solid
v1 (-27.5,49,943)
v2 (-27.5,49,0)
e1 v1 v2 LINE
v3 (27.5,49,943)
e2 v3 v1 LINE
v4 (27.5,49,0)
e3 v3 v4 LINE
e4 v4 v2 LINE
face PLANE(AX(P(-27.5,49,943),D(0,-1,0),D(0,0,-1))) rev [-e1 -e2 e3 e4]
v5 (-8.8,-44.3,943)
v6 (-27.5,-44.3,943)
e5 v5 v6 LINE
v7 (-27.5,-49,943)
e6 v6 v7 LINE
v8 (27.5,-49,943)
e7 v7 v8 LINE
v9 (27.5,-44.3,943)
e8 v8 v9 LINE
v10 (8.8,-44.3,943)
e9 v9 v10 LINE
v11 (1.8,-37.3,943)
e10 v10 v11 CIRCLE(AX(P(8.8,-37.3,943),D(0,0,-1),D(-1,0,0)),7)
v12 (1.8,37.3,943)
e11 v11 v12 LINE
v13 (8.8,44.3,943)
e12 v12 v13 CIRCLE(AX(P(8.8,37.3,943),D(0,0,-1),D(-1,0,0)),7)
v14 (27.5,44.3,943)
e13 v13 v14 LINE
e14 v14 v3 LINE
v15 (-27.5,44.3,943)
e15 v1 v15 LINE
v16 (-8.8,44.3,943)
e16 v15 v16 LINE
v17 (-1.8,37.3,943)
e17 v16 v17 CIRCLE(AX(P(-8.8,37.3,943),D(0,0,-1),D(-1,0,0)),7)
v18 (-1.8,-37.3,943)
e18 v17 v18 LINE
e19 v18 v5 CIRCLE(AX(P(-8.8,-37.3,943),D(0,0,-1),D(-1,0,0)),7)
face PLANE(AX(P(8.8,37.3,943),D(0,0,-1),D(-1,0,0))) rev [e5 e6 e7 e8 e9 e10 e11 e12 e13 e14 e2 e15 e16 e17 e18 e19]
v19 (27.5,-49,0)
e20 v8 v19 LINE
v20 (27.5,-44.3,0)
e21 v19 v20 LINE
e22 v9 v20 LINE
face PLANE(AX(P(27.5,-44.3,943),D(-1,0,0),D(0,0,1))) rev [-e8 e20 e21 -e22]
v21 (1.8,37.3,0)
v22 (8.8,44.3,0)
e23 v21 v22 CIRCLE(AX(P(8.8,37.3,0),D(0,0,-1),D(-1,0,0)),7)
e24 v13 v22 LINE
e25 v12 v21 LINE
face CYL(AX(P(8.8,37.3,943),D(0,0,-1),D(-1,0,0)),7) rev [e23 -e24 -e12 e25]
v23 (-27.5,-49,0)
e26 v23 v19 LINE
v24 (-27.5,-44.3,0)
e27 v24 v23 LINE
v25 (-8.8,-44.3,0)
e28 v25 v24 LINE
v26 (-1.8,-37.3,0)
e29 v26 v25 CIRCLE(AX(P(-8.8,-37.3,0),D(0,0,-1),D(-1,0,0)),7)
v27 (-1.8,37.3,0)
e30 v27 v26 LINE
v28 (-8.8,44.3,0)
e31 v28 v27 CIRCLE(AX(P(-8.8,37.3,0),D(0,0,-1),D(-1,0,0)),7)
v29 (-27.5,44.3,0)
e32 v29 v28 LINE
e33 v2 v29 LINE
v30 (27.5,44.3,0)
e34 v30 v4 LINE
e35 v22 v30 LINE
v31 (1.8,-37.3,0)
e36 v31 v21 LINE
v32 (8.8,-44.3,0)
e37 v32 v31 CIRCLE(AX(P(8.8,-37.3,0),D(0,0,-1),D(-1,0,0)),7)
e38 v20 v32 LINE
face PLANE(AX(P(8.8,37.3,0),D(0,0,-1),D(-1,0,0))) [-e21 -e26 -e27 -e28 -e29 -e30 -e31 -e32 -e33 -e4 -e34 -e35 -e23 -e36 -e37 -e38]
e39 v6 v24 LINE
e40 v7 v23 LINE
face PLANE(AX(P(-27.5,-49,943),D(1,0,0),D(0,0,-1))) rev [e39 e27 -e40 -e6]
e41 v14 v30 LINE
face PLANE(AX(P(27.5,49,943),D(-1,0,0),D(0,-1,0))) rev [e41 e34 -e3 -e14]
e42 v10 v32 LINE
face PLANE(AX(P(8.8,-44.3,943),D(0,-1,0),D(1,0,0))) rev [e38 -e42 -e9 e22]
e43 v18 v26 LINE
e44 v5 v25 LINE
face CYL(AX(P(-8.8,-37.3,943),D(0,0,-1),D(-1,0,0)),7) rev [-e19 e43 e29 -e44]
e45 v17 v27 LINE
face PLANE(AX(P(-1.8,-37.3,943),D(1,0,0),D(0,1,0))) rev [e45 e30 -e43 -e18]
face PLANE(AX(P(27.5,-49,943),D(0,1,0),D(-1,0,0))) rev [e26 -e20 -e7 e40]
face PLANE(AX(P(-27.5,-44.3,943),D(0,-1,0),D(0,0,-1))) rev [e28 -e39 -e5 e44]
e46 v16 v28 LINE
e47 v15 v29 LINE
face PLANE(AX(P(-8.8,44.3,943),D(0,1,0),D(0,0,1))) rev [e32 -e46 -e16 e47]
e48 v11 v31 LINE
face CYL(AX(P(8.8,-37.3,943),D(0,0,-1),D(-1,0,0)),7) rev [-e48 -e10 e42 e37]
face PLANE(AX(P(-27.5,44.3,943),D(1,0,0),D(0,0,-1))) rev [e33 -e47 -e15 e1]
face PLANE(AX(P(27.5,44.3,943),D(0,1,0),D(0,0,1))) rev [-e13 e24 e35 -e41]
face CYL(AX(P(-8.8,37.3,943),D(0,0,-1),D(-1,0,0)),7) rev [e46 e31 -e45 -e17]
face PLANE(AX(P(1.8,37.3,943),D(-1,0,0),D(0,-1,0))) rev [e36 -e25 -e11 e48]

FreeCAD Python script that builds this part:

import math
import FreeCAD as App
import Part
import Sketcher
Q = App.Units.Quantity

doc = App.newDocument("Part")
body = doc.addObject("PartDesign::Body", "Body")

# Sketch on XY plane
sketch1 = body.newObject("Sketcher::SketchObject", "Sketch")
sketch1.AttachmentSupport = (doc.getObject("XY_Plane"), [""])
sketch1.MapMode = "FlatFace"
sketch1.addGeometry(Part.LineSegment(App.Vector(27.5, 49, 0), App.Vector(-27.5, 49, 0)), False)
sketch1.addGeometry(Part.LineSegment(App.Vector(-27.5, 49, 0), App.Vector(-27.5, 44.3, 0)), False)
sketch1.addGeometry(Part.LineSegment(App.Vector(-27.5, 44.3, 0), App.Vector(-8.8, 44.3, 0)), False)
sketch1.addGeometry(Part.ArcOfCircle(Part.Circle(App.Vector(-8.8, 37.3, 0), App.Vector(0, 0, 1), 7), math.radians(0), math.radians(90)), False)
sketch1.addGeometry(Part.LineSegment(App.Vector(-1.8, 37.3, 0), App.Vector(-1.8, -37.3, 0)), False)
sketch1.addGeometry(Part.ArcOfCircle(Part.Circle(App.Vector(-8.8, -37.3, 0), App.Vector(0, 0, 1), 7), math.radians(-90), math.radians(0)), False)
sketch1.addGeometry(Part.LineSegment(App.Vector(-8.8, -44.3, 0), App.Vector(-27.5, -44.3, 0)), False)
sketch1.addGeometry(Part.LineSegment(App.Vector(-27.5, -44.3, 0), App.Vector(-27.5, -49, 0)), False)
sketch1.addGeometry(Part.LineSegment(App.Vector(-27.5, -49, 0), App.Vector(27.5, -49, 0)), False)
sketch1.addGeometry(Part.LineSegment(App.Vector(27.5, -49, 0), App.Vector(27.5, -44.3, 0)), False)
sketch1.addGeometry(Part.LineSegment(App.Vector(27.5, -44.3, 0), App.Vector(8.8, -44.3, 0)), False)
sketch1.addGeometry(Part.ArcOfCircle(Part.Circle(App.Vector(8.8, -37.3, 0), App.Vector(0, 0, 1), 7), math.radians(-180), math.radians(-90)), False)
sketch1.addGeometry(Part.LineSegment(App.Vector(1.8, -37.3, 0), App.Vector(1.8, 37.3, 0)), False)
sketch1.addGeometry(Part.ArcOfCircle(Part.Circle(App.Vector(8.8, 37.3, 0), App.Vector(0, 0, 1), 7), math.radians(90), math.radians(180)), False)
sketch1.addGeometry(Part.LineSegment(App.Vector(8.8, 44.3, 0), App.Vector(27.5, 44.3, 0)), False)
sketch1.addGeometry(Part.LineSegment(App.Vector(27.5, 44.3, 0), App.Vector(27.5, 49, 0)), False)
sketch1.addConstraint(Sketcher.Constraint("Coincident", 0, 2, 1, 1))
sketch1.addConstraint(Sketcher.Constraint("Coincident", 1, 2, 2, 1))
sketch1.addConstraint(Sketcher.Constraint("Tangent", 2, 2, 3, 2))
sketch1.addConstraint(Sketcher.Constraint("Tangent", 3, 1, 4, 1))
sketch1.addConstraint(Sketcher.Constraint("Tangent", 4, 2, 5, 2))
sketch1.addConstraint(Sketcher.Constraint("Tangent", 5, 1, 6, 1))
sketch1.addConstraint(Sketcher.Constraint("Coincident", 6, 2, 7, 1))
sketch1.addConstraint(Sketcher.Constraint("Coincident", 7, 2, 8, 1))
sketch1.addConstraint(Sketcher.Constraint("Coincident", 8, 2, 9, 1))
sketch1.addConstraint(Sketcher.Constraint("Coincident", 9, 2, 10, 1))
sketch1.addConstraint(Sketcher.Constraint("Tangent", 10, 2, 11, 2))
sketch1.addConstraint(Sketcher.Constraint("Tangent", 11, 1, 12, 1))
sketch1.addConstraint(Sketcher.Constraint("Tangent", 12, 2, 13, 2))
sketch1.addConstraint(Sketcher.Constraint("Tangent", 13, 1, 14, 1))
sketch1.addConstraint(Sketcher.Constraint("Coincident", 14, 2, 15, 1))
sketch1.addConstraint(Sketcher.Constraint("Coincident", 15, 2, 0, 1))
sketch1.addConstraint(Sketcher.Constraint("Horizontal", 0))
sketch1.addConstraint(Sketcher.Constraint("Vertical", 1))
sketch1.addConstraint(Sketcher.Constraint("Horizontal", 2))
sketch1.addConstraint(Sketcher.Constraint("Vertical", 4))
sketch1.addConstraint(Sketcher.Constraint("Horizontal", 6))
sketch1.addConstraint(Sketcher.Constraint("Vertical", 7))
sketch1.addConstraint(Sketcher.Constraint("Horizontal", 8))
sketch1.addConstraint(Sketcher.Constraint("Vertical", 9))
sketch1.addConstraint(Sketcher.Constraint("Horizontal", 10))
sketch1.addConstraint(Sketcher.Constraint("Vertical", 12))
sketch1.addConstraint(Sketcher.Constraint("Horizontal", 14))
sketch1.addConstraint(Sketcher.Constraint("Vertical", 15))
sketch1.addConstraint(Sketcher.Constraint("Equal", 3, 5))
sketch1.addConstraint(Sketcher.Constraint("Equal", 5, 11))
sketch1.addConstraint(Sketcher.Constraint("Equal", 11, 13))
sketch1.addConstraint(Sketcher.Constraint("Symmetric", 3, 3, 11, 3, -1, 1))
sketch1.addConstraint(Sketcher.Constraint("Symmetric", 0, 2, 8, 2, -1, 1))
sketch1.addConstraint(Sketcher.Constraint("Symmetric", 6, 2, 14, 2, -1, 1))
sketch1.addConstraint(Sketcher.Constraint("Symmetric", 6, 2, 9, 2, -2))
sketch1.addConstraint(Sketcher.Constraint("Radius", 3, Q("7 mm")))
sketch1.addConstraint(Sketcher.Constraint("DistanceX", 0, 2, 0, 1, Q("55 mm")))
sketch1.addConstraint(Sketcher.Constraint("DistanceX", 2, 1, 2, 2, Q("18.7 mm")))
sketch1.addConstraint(Sketcher.Constraint("DistanceY", 1, 2, 1, 1, Q("4.7 mm")))
sketch1.addConstraint(Sketcher.Constraint("DistanceY", 4, 2, 4, 1, Q("74.6 mm")))
pad1 = body.newObject("PartDesign::Pad", "Pad")
pad1.Profile = sketch1
pad1.Length = 943

doc.recompute()
